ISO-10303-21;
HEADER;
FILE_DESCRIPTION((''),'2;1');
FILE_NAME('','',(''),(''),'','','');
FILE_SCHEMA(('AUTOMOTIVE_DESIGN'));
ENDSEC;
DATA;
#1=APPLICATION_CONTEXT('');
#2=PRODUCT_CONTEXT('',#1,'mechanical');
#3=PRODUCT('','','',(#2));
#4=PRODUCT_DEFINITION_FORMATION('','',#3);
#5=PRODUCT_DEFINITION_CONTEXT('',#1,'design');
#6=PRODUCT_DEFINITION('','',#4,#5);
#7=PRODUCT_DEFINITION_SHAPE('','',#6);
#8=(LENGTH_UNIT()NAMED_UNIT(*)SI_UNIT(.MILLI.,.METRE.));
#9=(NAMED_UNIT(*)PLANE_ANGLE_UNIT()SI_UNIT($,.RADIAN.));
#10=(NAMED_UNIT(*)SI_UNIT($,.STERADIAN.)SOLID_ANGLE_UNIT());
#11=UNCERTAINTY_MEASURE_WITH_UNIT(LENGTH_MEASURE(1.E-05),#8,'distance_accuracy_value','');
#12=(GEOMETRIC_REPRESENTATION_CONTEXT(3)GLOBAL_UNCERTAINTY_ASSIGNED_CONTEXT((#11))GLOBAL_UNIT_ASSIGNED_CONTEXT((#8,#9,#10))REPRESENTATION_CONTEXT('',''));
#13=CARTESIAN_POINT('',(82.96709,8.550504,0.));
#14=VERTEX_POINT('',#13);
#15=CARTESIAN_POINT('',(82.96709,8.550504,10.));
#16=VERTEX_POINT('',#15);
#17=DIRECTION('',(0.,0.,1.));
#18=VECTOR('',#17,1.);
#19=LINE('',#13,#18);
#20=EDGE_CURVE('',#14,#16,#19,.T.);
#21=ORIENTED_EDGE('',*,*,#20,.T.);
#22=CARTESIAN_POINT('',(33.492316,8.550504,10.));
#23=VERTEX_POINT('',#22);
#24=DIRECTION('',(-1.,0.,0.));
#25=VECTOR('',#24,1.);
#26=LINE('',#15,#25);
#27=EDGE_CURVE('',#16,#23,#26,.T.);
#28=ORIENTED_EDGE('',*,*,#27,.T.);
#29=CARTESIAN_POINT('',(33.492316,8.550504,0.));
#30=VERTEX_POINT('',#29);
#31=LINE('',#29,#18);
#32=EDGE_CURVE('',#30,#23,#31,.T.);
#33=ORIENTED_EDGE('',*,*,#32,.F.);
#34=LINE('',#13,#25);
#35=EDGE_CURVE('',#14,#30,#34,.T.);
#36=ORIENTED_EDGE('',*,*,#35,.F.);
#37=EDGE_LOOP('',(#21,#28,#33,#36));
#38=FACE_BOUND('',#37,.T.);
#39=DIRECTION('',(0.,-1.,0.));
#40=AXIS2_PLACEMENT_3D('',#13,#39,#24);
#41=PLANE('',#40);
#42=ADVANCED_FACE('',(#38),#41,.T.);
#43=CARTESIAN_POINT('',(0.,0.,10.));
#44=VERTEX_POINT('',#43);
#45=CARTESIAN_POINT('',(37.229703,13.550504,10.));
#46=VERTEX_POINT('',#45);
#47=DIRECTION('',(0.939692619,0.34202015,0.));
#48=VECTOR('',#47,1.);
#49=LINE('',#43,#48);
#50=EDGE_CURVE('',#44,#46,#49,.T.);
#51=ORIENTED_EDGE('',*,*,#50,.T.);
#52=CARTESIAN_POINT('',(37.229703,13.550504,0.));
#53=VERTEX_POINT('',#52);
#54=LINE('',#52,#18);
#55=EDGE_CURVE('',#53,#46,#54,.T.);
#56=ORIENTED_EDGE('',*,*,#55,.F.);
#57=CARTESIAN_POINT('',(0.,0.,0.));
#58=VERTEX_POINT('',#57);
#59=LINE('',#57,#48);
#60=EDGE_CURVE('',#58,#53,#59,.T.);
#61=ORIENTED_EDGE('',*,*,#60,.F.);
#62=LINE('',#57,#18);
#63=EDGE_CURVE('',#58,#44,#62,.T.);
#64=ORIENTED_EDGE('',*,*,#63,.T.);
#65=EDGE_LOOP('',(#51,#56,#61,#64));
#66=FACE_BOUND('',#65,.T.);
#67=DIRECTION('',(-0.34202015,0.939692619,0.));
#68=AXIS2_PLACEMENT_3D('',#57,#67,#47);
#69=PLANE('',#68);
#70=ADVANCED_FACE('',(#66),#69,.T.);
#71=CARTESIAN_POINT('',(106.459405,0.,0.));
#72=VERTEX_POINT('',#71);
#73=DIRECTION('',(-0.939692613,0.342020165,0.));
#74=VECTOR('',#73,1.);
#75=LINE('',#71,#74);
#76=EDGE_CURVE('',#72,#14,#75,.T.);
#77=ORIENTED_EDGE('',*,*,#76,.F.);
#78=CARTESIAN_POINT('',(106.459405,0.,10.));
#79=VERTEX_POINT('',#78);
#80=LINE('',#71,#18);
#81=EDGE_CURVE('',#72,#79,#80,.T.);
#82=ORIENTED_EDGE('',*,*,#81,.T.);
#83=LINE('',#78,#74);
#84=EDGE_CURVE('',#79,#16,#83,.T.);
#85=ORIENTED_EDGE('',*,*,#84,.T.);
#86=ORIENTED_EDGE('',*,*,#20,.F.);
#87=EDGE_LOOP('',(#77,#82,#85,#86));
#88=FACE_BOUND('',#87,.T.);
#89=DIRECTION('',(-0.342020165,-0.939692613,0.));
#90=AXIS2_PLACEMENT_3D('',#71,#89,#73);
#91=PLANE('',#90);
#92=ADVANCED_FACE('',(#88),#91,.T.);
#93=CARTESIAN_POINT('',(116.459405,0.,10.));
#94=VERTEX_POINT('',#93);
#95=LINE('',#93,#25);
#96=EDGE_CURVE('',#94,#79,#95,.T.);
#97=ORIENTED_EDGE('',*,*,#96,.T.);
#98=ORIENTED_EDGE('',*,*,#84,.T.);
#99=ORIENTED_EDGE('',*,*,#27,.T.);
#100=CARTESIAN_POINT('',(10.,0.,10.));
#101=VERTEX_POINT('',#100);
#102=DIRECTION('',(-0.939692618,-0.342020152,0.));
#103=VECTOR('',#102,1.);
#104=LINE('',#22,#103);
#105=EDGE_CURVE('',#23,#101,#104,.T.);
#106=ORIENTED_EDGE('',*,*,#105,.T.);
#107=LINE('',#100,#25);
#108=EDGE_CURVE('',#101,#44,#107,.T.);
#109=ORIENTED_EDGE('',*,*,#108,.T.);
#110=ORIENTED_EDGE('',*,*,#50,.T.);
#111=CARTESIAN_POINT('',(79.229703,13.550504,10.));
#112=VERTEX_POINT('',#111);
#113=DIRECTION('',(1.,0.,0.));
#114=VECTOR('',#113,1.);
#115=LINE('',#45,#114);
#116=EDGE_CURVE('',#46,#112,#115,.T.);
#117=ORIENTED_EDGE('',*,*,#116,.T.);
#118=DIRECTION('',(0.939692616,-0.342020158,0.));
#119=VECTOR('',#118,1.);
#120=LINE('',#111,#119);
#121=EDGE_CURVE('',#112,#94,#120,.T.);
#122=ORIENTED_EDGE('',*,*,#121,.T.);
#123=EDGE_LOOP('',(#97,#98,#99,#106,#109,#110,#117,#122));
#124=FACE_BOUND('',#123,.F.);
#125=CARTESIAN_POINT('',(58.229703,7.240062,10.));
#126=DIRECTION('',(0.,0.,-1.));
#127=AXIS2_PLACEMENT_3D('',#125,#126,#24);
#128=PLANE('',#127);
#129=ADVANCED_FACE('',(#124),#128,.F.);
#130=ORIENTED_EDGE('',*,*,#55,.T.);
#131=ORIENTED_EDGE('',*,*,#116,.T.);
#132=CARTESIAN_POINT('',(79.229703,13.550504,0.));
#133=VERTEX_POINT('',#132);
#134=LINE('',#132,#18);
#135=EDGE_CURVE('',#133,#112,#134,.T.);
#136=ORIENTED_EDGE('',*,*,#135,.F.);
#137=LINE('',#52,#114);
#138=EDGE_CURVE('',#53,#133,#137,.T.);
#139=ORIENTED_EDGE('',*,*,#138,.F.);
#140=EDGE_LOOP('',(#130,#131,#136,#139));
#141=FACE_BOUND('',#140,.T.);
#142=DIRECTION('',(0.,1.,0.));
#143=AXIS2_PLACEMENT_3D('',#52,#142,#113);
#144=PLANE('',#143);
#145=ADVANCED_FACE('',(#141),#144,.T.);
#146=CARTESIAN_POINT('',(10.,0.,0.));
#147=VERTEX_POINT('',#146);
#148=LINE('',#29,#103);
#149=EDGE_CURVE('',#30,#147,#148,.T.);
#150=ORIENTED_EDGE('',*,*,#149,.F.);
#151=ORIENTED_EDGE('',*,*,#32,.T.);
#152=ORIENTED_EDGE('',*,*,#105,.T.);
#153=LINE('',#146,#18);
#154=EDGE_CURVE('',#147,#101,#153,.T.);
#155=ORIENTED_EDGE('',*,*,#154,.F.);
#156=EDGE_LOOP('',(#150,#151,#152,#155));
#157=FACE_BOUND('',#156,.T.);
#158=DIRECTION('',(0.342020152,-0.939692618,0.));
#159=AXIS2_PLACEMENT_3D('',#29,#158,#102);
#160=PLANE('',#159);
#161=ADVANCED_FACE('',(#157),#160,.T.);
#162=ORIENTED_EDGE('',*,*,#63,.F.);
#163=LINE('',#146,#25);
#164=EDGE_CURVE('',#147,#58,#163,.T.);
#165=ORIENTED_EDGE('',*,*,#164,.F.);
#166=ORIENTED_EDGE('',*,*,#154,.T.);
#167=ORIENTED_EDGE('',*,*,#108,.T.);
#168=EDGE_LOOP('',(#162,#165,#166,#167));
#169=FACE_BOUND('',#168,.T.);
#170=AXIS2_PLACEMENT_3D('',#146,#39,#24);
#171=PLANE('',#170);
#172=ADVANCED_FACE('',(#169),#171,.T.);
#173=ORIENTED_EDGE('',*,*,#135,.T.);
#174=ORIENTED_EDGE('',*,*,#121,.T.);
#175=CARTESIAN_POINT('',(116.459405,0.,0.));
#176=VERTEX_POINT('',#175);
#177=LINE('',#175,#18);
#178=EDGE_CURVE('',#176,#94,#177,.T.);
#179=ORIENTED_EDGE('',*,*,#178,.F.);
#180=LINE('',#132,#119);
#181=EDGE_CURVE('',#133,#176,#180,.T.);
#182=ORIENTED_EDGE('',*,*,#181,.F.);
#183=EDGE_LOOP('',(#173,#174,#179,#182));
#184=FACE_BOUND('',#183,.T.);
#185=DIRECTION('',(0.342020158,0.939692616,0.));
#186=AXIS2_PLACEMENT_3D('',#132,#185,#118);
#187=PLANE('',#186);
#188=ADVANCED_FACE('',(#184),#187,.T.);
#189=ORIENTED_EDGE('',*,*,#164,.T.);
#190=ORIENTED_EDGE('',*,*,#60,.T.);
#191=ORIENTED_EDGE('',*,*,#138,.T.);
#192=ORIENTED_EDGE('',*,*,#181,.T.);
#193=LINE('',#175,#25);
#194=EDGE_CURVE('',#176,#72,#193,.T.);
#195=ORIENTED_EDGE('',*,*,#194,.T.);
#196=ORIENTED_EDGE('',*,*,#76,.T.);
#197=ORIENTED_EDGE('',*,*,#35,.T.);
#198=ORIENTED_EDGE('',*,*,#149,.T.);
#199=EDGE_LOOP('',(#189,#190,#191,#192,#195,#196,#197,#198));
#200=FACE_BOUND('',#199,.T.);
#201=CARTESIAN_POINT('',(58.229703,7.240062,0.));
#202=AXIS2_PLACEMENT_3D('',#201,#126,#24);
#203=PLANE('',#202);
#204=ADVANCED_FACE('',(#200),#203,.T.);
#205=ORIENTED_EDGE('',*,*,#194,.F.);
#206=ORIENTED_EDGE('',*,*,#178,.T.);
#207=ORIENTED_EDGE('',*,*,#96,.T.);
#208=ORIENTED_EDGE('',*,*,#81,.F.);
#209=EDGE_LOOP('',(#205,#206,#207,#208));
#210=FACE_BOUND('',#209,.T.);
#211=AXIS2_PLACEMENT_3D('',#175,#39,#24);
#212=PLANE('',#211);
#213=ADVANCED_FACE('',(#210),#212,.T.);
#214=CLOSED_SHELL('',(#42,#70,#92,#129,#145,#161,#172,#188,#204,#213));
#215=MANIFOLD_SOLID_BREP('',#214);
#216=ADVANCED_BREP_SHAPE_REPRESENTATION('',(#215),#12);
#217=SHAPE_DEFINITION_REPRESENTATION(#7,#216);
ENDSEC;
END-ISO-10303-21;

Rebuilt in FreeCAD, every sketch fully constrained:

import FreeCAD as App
import Part
import Sketcher
Q = App.Units.Quantity

doc = App.newDocument("Part")
body = doc.addObject("PartDesign::Body", "Body")

sketch1 = doc.addObject("Sketcher::SketchObject", "Sketch")
body.addObject(sketch1)
sketch1.AttachmentSupport = (doc.XY_Plane, [""])
sketch1.MapMode = "FlatFace"
sketch1.addGeometry([
    Part.LineSegment(App.Vector(37.229703, 13.550504, 0), App.Vector(0, 0, 0)),
    Part.LineSegment(App.Vector(0, 0, 0), App.Vector(10, 0, 0)),
    Part.LineSegment(App.Vector(10, 0, 0), App.Vector(33.492316, 8.550504, 0)),
    Part.LineSegment(App.Vector(33.492316, 8.550504, 0), App.Vector(82.96709, 8.550504, 0)),
    Part.LineSegment(App.Vector(82.96709, 8.550504, 0), App.Vector(106.459405, 0, 0)),
    Part.LineSegment(App.Vector(106.459405, 0, 0), App.Vector(116.459405, 0, 0)),
    Part.LineSegment(App.Vector(116.459405, 0, 0), App.Vector(79.229703, 13.550504, 0)),
    Part.LineSegment(App.Vector(79.229703, 13.550504, 0), App.Vector(37.229703, 13.550504, 0)),
], False)
sketch1.addConstraint([
    Sketcher.Constraint("Coincident", 0, 2, 1, 1),
    Sketcher.Constraint("Coincident", 1, 2, 2, 1),
    Sketcher.Constraint("Coincident", 2, 2, 3, 1),
    Sketcher.Constraint("Coincident", 3, 2, 4, 1),
    Sketcher.Constraint("Coincident", 4, 2, 5, 1),
    Sketcher.Constraint("Coincident", 5, 2, 6, 1),
    Sketcher.Constraint("Coincident", 6, 2, 7, 1),
    Sketcher.Constraint("Coincident", 7, 2, 0, 1),
    Sketcher.Constraint("Horizontal", 1),
    Sketcher.Constraint("Horizontal", 3),
    Sketcher.Constraint("Horizontal", 5),
    Sketcher.Constraint("Horizontal", 7),
    Sketcher.Constraint("Coincident", 0, 2, -1, 1),
    Sketcher.Constraint("PointOnObject", 4, 2, -1),
    Sketcher.Constraint("Parallel", 0, 2),
    Sketcher.Constraint("Parallel", 4, 6),
    Sketcher.Constraint("Equal", 1, 5),
    Sketcher.Constraint("Equal", 2, 4),
    Sketcher.Constraint("DistanceX", 1, 1, 1, 2, 10.0),
    Sketcher.Constraint("DistanceX", 7, 2, 7, 1, 42.0),
    Sketcher.Constraint("Angle", 0, Q("-160 deg")),
    Sketcher.Constraint("Distance", 2, 25.000001),
    Sketcher.Constraint("DistanceY", 3, 2, 6, 2, 5.0),
])
pad1 = doc.addObject("PartDesign::Pad", "Pad")
body.addObject(pad1)
pad1.Profile = sketch1
pad1.Length = 10

doc.recompute()
